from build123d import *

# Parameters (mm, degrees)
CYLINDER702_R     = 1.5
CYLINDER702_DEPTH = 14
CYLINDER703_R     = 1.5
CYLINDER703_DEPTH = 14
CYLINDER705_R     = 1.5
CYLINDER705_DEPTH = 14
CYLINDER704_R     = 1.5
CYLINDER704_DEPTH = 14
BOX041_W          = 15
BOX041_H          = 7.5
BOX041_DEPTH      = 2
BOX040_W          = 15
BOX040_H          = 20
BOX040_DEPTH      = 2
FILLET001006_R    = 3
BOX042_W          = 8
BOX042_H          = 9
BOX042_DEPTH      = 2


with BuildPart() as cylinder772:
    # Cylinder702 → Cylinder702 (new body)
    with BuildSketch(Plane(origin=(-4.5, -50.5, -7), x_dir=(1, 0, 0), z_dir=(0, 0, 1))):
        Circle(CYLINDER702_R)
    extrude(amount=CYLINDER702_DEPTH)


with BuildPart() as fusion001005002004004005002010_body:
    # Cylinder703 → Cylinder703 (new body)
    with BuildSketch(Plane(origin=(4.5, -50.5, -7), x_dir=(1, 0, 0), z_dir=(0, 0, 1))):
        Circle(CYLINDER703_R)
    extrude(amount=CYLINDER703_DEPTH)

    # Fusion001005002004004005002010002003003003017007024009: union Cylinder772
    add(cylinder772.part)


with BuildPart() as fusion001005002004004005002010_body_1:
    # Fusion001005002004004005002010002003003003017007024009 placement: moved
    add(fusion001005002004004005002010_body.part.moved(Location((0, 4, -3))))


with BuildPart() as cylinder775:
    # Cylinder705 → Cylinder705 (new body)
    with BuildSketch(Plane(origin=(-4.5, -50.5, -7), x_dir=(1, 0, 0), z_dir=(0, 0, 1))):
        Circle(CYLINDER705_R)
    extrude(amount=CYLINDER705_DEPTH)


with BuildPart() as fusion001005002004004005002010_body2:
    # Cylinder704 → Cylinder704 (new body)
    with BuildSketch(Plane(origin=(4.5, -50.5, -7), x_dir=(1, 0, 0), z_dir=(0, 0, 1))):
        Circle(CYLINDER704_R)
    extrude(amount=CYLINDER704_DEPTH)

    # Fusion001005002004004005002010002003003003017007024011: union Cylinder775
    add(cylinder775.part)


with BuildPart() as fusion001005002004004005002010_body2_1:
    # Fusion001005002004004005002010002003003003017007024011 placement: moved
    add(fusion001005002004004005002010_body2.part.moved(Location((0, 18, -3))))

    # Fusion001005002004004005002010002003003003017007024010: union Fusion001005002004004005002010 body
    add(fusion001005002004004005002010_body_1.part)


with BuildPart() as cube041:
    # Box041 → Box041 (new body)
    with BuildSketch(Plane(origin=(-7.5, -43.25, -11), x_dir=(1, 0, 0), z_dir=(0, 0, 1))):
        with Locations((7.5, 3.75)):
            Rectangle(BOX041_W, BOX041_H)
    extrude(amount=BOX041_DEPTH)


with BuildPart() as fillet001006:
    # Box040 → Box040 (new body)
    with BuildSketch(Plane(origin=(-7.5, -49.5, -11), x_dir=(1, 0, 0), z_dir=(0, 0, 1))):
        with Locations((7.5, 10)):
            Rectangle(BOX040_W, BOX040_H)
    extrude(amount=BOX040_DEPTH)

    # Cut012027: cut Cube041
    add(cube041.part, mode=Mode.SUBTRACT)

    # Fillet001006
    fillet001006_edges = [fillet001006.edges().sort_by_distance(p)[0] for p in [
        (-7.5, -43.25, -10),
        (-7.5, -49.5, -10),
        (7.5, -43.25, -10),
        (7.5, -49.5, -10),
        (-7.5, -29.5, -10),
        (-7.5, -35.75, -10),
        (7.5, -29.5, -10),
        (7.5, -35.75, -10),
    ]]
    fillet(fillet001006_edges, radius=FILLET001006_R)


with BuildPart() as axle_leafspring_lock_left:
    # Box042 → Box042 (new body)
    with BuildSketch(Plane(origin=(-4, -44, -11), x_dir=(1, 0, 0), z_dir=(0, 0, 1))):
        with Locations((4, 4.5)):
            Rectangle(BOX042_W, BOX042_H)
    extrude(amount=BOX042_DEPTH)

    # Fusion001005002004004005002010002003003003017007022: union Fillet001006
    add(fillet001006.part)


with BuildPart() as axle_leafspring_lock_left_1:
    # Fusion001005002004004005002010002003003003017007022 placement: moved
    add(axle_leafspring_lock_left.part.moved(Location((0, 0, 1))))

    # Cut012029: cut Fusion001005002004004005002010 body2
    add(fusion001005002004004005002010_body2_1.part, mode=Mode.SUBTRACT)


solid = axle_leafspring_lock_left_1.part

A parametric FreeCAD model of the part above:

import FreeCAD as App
import Part
import Sketcher

V = App.Vector
Q = App.Units.Quantity


def edges_at(feature, points):
    """Names of the edges that pass closest to the given points."""
    edges = feature.Shape.Edges
    near = lambda p: min(range(len(edges)), key=lambda i: edges[i].distToShape(Part.Vertex(*p))[0])
    return sorted({f"Edge{near(p) + 1}" for p in points})


def add_polygon(sketch, points):
    """Adds a closed chain of lines whose ends are joined by coincident constraints."""
    first, n = sketch.GeometryCount, len(points)
    for a, b in zip(points, points[1:] + points[:1]):
        sketch.addGeometry(Part.LineSegment(App.Vector(*a, 0), App.Vector(*b, 0)), False)
    for i in range(n):
        sketch.addConstraint(Sketcher.Constraint("Coincident", first + i, 2, first + (i + 1) % n, 1))

doc = App.newDocument("Part")
body = doc.addObject("PartDesign::Body", "Body")

sketch1 = body.newObject("Sketcher::SketchObject", "Sketch")
sketch1.AttachmentSupport = (doc.getObject("XY_Plane"), [""])
sketch1.MapMode = "FlatFace"
sketch1.AttachmentOffset = App.Placement(V(0, 0, -7), App.Rotation())
sketch1.addGeometry(Part.Circle(V(-4.5, -50.5, 0), V(0, 0, 1), 1.5), False)
sketch1.addConstraint(Sketcher.Constraint("Diameter", 0, Q("3 mm")))
sketch1.addConstraint(Sketcher.Constraint("DistanceX", 0, 3, -1, 1, Q("4.5 mm")))
sketch1.addConstraint(Sketcher.Constraint("DistanceY", 0, 3, -1, 1, Q("50.5 mm")))
pad1 = body.newObject("PartDesign::Pad", "Pad")
pad1.Profile = sketch1
pad1.Length = 14
body2 = doc.addObject("PartDesign::Body", "Body001")
body2.AllowCompound = True

sketch2 = body2.newObject("Sketcher::SketchObject", "Sketch001")
sketch2.AttachmentSupport = (doc.getObject("XY_Plane001"), [""])
sketch2.MapMode = "FlatFace"
sketch2.AttachmentOffset = App.Placement(V(0, 0, -7), App.Rotation())
sketch2.addGeometry(Part.Circle(V(4.5, -50.5, 0), V(0, 0, 1), 1.5), False)
sketch2.addConstraint(Sketcher.Constraint("Diameter", 0, Q("3 mm")))
sketch2.addConstraint(Sketcher.Constraint("DistanceX", -1, 1, 0, 3, Q("4.5 mm")))
sketch2.addConstraint(Sketcher.Constraint("DistanceY", 0, 3, -1, 1, Q("50.5 mm")))
pad2 = body2.newObject("PartDesign::Pad", "Pad001")
pad2.Profile = sketch2
pad2.Length = 14
doc.recompute()

boolean = body2.newObject("PartDesign::Boolean", "Boolean")
boolean.Type = "Fuse"
boolean.addObjects([body])
body3 = doc.addObject("PartDesign::Body", "Body002")
body3.AllowCompound = True
doc.recompute()

body2.Placement = App.Placement(V(0, 4, -3), App.Rotation(V(0, 0, 1), 0))
boolean2 = body3.newObject("PartDesign::Boolean", "Boolean001")
boolean2.Type = "Fuse"
boolean2.addObjects([body2])
body4 = doc.addObject("PartDesign::Body", "Body003")

sketch3 = body4.newObject("Sketcher::SketchObject", "Sketch002")
sketch3.AttachmentSupport = (doc.getObject("XY_Plane003"), [""])
sketch3.MapMode = "FlatFace"
sketch3.AttachmentOffset = App.Placement(V(0, 0, -7), App.Rotation())
sketch3.addGeometry(Part.Circle(V(-4.5, -50.5, 0), V(0, 0, 1), 1.5), False)
sketch3.addConstraint(Sketcher.Constraint("Diameter", 0, Q("3 mm")))
sketch3.addConstraint(Sketcher.Constraint("DistanceX", 0, 3, -1, 1, Q("4.5 mm")))
sketch3.addConstraint(Sketcher.Constraint("DistanceY", 0, 3, -1, 1, Q("50.5 mm")))
pad3 = body4.newObject("PartDesign::Pad", "Pad002")
pad3.Profile = sketch3
pad3.Length = 14
body5 = doc.addObject("PartDesign::Body", "Body004")
body5.AllowCompound = True

sketch4 = body5.newObject("Sketcher::SketchObject", "Sketch003")
sketch4.AttachmentSupport = (doc.getObject("XY_Plane004"), [""])
sketch4.MapMode = "FlatFace"
sketch4.AttachmentOffset = App.Placement(V(0, 0, -7), App.Rotation())
sketch4.addGeometry(Part.Circle(V(4.5, -50.5, 0), V(0, 0, 1), 1.5), False)
sketch4.addConstraint(Sketcher.Constraint("Diameter", 0, Q("3 mm")))
sketch4.addConstraint(Sketcher.Constraint("DistanceX", -1, 1, 0, 3, Q("4.5 mm")))
sketch4.addConstraint(Sketcher.Constraint("DistanceY", 0, 3, -1, 1, Q("50.5 mm")))
pad4 = body5.newObject("PartDesign::Pad", "Pad003")
pad4.Profile = sketch4
pad4.Length = 14
doc.recompute()

boolean3 = body5.newObject("PartDesign::Boolean", "Boolean002")
boolean3.Type = "Fuse"
boolean3.addObjects([body4])
body6 = doc.addObject("PartDesign::Body", "Body005")
body6.AllowCompound = True
doc.recompute()

body5.Placement = App.Placement(V(0, 18, -3), App.Rotation(V(0, 0, 1), 0))
boolean4 = body6.newObject("PartDesign::Boolean", "Boolean003")
boolean4.Type = "Fuse"
boolean4.addObjects([body5])
doc.recompute()

boolean5 = body6.newObject("PartDesign::Boolean", "Boolean004")
boolean5.Type = "Fuse"
boolean5.addObjects([body3])
body7 = doc.addObject("PartDesign::Body", "Body006")

sketch5 = body7.newObject("Sketcher::SketchObject", "Sketch004")
sketch5.AttachmentSupport = (doc.getObject("XY_Plane006"), [""])
sketch5.MapMode = "FlatFace"
sketch5.AttachmentOffset = App.Placement(V(0, 0, -11), App.Rotation())
add_polygon(sketch5, [(-7.5, -35.75), (-7.5, -43.25), (7.5, -43.25), (7.5, -35.75)])
sketch5.addConstraint(Sketcher.Constraint("Vertical", 0))
sketch5.addConstraint(Sketcher.Constraint("Horizontal", 1))
sketch5.addConstraint(Sketcher.Constraint("Vertical", 2))
sketch5.addConstraint(Sketcher.Constraint("Horizontal", 3))
sketch5.addConstraint(Sketcher.Constraint("DistanceX", 1, 1, 1, 2, Q("15 mm")))
sketch5.addConstraint(Sketcher.Constraint("DistanceY", 0, 2, 0, 1, Q("7.5 mm")))
sketch5.addConstraint(Sketcher.Constraint("DistanceX", 0, 2, -1, 1, Q("7.5 mm")))
sketch5.addConstraint(Sketcher.Constraint("DistanceY", 0, 2, -1, 1, Q("43.25 mm")))
pad5 = body7.newObject("PartDesign::Pad", "Pad004")
pad5.Profile = sketch5
pad5.Length = 2
body8 = doc.addObject("PartDesign::Body", "Body007")
body8.AllowCompound = True

sketch6 = body8.newObject("Sketcher::SketchObject", "Sketch005")
sketch6.AttachmentSupport = (doc.getObject("XY_Plane007"), [""])
sketch6.MapMode = "FlatFace"
sketch6.AttachmentOffset = App.Placement(V(0, 0, -11), App.Rotation())
add_polygon(sketch6, [(-7.5, -29.5), (-7.5, -49.5), (7.5, -49.5), (7.5, -29.5)])
sketch6.addConstraint(Sketcher.Constraint("Vertical", 0))
sketch6.addConstraint(Sketcher.Constraint("Horizontal", 1))
sketch6.addConstraint(Sketcher.Constraint("Vertical", 2))
sketch6.addConstraint(Sketcher.Constraint("Horizontal", 3))
sketch6.addConstraint(Sketcher.Constraint("DistanceX", 1, 1, 1, 2, Q("15 mm")))
sketch6.addConstraint(Sketcher.Constraint("DistanceY", 0, 2, 0, 1, Q("20 mm")))
sketch6.addConstraint(Sketcher.Constraint("DistanceX", 0, 2, -1, 1, Q("7.5 mm")))
sketch6.addConstraint(Sketcher.Constraint("DistanceY", 0, 2, -1, 1, Q("49.5 mm")))
pad6 = body8.newObject("PartDesign::Pad", "Pad005")
pad6.Profile = sketch6
pad6.Length = 2
doc.recompute()

boolean6 = body8.newObject("PartDesign::Boolean", "Boolean005")
boolean6.Type = "Cut"
boolean6.addObjects([body7])
doc.recompute()

fillet = body8.newObject("PartDesign::Fillet", "Fillet")
fillet.Base = (boolean6, edges_at(boolean6, [
    (-7.5, -43.25, -10),
    (-7.5, -49.5, -10),
    (7.5, -43.25, -10),
    (7.5, -49.5, -10),
    (-7.5, -29.5, -10),
    (-7.5, -35.75, -10),
    (7.5, -29.5, -10),
    (7.5, -35.75, -10),
]))
fillet.Radius = 3
body9 = doc.addObject("PartDesign::Body", "Body008")

sketch7 = body9.newObject("Sketcher::SketchObject", "Sketch006")
sketch7.AttachmentSupport = (doc.getObject("XY_Plane008"), [""])
sketch7.MapMode = "FlatFace"
sketch7.AttachmentOffset = App.Placement(V(0, 0, -11), App.Rotation())
add_polygon(sketch7, [(-4, -35), (-4, -44), (4, -44), (4, -35)])
sketch7.addConstraint(Sketcher.Constraint("Vertical", 0))
sketch7.addConstraint(Sketcher.Constraint("Horizontal", 1))
sketch7.addConstraint(Sketcher.Constraint("Vertical", 2))
sketch7.addConstraint(Sketcher.Constraint("Horizontal", 3))
sketch7.addConstraint(Sketcher.Constraint("DistanceX", 1, 1, 1, 2, Q("8 mm")))
sketch7.addConstraint(Sketcher.Constraint("DistanceY", 0, 2, 0, 1, Q("9 mm")))
sketch7.addConstraint(Sketcher.Constraint("DistanceX", 0, 2, -1, 1, Q("4 mm")))
sketch7.addConstraint(Sketcher.Constraint("DistanceY", 0, 2, -1, 1, Q("44 mm")))
pad7 = body9.newObject("PartDesign::Pad", "Pad006")
pad7.Profile = sketch7
pad7.Length = 2
doc.recompute()

boolean7 = body9.newObject("PartDesign::Boolean", "Boolean006")
boolean7.Type = "Fuse"
boolean7.addObjects([body8])
body10 = doc.addObject("PartDesign::Body", "Body009")
doc.recompute()

body9.Placement = App.Placement(V(0, 0, 1), App.Rotation(V(0, 0, 1), 0))
boolean8 = body10.newObject("PartDesign::Boolean", "Boolean007")
boolean8.Type = "Fuse"
boolean8.addObjects([body9])
doc.recompute()

boolean9 = body10.newObject("PartDesign::Boolean", "Boolean008")
boolean9.Type = "Cut"
boolean9.addObjects([body6])

doc.recompute()
